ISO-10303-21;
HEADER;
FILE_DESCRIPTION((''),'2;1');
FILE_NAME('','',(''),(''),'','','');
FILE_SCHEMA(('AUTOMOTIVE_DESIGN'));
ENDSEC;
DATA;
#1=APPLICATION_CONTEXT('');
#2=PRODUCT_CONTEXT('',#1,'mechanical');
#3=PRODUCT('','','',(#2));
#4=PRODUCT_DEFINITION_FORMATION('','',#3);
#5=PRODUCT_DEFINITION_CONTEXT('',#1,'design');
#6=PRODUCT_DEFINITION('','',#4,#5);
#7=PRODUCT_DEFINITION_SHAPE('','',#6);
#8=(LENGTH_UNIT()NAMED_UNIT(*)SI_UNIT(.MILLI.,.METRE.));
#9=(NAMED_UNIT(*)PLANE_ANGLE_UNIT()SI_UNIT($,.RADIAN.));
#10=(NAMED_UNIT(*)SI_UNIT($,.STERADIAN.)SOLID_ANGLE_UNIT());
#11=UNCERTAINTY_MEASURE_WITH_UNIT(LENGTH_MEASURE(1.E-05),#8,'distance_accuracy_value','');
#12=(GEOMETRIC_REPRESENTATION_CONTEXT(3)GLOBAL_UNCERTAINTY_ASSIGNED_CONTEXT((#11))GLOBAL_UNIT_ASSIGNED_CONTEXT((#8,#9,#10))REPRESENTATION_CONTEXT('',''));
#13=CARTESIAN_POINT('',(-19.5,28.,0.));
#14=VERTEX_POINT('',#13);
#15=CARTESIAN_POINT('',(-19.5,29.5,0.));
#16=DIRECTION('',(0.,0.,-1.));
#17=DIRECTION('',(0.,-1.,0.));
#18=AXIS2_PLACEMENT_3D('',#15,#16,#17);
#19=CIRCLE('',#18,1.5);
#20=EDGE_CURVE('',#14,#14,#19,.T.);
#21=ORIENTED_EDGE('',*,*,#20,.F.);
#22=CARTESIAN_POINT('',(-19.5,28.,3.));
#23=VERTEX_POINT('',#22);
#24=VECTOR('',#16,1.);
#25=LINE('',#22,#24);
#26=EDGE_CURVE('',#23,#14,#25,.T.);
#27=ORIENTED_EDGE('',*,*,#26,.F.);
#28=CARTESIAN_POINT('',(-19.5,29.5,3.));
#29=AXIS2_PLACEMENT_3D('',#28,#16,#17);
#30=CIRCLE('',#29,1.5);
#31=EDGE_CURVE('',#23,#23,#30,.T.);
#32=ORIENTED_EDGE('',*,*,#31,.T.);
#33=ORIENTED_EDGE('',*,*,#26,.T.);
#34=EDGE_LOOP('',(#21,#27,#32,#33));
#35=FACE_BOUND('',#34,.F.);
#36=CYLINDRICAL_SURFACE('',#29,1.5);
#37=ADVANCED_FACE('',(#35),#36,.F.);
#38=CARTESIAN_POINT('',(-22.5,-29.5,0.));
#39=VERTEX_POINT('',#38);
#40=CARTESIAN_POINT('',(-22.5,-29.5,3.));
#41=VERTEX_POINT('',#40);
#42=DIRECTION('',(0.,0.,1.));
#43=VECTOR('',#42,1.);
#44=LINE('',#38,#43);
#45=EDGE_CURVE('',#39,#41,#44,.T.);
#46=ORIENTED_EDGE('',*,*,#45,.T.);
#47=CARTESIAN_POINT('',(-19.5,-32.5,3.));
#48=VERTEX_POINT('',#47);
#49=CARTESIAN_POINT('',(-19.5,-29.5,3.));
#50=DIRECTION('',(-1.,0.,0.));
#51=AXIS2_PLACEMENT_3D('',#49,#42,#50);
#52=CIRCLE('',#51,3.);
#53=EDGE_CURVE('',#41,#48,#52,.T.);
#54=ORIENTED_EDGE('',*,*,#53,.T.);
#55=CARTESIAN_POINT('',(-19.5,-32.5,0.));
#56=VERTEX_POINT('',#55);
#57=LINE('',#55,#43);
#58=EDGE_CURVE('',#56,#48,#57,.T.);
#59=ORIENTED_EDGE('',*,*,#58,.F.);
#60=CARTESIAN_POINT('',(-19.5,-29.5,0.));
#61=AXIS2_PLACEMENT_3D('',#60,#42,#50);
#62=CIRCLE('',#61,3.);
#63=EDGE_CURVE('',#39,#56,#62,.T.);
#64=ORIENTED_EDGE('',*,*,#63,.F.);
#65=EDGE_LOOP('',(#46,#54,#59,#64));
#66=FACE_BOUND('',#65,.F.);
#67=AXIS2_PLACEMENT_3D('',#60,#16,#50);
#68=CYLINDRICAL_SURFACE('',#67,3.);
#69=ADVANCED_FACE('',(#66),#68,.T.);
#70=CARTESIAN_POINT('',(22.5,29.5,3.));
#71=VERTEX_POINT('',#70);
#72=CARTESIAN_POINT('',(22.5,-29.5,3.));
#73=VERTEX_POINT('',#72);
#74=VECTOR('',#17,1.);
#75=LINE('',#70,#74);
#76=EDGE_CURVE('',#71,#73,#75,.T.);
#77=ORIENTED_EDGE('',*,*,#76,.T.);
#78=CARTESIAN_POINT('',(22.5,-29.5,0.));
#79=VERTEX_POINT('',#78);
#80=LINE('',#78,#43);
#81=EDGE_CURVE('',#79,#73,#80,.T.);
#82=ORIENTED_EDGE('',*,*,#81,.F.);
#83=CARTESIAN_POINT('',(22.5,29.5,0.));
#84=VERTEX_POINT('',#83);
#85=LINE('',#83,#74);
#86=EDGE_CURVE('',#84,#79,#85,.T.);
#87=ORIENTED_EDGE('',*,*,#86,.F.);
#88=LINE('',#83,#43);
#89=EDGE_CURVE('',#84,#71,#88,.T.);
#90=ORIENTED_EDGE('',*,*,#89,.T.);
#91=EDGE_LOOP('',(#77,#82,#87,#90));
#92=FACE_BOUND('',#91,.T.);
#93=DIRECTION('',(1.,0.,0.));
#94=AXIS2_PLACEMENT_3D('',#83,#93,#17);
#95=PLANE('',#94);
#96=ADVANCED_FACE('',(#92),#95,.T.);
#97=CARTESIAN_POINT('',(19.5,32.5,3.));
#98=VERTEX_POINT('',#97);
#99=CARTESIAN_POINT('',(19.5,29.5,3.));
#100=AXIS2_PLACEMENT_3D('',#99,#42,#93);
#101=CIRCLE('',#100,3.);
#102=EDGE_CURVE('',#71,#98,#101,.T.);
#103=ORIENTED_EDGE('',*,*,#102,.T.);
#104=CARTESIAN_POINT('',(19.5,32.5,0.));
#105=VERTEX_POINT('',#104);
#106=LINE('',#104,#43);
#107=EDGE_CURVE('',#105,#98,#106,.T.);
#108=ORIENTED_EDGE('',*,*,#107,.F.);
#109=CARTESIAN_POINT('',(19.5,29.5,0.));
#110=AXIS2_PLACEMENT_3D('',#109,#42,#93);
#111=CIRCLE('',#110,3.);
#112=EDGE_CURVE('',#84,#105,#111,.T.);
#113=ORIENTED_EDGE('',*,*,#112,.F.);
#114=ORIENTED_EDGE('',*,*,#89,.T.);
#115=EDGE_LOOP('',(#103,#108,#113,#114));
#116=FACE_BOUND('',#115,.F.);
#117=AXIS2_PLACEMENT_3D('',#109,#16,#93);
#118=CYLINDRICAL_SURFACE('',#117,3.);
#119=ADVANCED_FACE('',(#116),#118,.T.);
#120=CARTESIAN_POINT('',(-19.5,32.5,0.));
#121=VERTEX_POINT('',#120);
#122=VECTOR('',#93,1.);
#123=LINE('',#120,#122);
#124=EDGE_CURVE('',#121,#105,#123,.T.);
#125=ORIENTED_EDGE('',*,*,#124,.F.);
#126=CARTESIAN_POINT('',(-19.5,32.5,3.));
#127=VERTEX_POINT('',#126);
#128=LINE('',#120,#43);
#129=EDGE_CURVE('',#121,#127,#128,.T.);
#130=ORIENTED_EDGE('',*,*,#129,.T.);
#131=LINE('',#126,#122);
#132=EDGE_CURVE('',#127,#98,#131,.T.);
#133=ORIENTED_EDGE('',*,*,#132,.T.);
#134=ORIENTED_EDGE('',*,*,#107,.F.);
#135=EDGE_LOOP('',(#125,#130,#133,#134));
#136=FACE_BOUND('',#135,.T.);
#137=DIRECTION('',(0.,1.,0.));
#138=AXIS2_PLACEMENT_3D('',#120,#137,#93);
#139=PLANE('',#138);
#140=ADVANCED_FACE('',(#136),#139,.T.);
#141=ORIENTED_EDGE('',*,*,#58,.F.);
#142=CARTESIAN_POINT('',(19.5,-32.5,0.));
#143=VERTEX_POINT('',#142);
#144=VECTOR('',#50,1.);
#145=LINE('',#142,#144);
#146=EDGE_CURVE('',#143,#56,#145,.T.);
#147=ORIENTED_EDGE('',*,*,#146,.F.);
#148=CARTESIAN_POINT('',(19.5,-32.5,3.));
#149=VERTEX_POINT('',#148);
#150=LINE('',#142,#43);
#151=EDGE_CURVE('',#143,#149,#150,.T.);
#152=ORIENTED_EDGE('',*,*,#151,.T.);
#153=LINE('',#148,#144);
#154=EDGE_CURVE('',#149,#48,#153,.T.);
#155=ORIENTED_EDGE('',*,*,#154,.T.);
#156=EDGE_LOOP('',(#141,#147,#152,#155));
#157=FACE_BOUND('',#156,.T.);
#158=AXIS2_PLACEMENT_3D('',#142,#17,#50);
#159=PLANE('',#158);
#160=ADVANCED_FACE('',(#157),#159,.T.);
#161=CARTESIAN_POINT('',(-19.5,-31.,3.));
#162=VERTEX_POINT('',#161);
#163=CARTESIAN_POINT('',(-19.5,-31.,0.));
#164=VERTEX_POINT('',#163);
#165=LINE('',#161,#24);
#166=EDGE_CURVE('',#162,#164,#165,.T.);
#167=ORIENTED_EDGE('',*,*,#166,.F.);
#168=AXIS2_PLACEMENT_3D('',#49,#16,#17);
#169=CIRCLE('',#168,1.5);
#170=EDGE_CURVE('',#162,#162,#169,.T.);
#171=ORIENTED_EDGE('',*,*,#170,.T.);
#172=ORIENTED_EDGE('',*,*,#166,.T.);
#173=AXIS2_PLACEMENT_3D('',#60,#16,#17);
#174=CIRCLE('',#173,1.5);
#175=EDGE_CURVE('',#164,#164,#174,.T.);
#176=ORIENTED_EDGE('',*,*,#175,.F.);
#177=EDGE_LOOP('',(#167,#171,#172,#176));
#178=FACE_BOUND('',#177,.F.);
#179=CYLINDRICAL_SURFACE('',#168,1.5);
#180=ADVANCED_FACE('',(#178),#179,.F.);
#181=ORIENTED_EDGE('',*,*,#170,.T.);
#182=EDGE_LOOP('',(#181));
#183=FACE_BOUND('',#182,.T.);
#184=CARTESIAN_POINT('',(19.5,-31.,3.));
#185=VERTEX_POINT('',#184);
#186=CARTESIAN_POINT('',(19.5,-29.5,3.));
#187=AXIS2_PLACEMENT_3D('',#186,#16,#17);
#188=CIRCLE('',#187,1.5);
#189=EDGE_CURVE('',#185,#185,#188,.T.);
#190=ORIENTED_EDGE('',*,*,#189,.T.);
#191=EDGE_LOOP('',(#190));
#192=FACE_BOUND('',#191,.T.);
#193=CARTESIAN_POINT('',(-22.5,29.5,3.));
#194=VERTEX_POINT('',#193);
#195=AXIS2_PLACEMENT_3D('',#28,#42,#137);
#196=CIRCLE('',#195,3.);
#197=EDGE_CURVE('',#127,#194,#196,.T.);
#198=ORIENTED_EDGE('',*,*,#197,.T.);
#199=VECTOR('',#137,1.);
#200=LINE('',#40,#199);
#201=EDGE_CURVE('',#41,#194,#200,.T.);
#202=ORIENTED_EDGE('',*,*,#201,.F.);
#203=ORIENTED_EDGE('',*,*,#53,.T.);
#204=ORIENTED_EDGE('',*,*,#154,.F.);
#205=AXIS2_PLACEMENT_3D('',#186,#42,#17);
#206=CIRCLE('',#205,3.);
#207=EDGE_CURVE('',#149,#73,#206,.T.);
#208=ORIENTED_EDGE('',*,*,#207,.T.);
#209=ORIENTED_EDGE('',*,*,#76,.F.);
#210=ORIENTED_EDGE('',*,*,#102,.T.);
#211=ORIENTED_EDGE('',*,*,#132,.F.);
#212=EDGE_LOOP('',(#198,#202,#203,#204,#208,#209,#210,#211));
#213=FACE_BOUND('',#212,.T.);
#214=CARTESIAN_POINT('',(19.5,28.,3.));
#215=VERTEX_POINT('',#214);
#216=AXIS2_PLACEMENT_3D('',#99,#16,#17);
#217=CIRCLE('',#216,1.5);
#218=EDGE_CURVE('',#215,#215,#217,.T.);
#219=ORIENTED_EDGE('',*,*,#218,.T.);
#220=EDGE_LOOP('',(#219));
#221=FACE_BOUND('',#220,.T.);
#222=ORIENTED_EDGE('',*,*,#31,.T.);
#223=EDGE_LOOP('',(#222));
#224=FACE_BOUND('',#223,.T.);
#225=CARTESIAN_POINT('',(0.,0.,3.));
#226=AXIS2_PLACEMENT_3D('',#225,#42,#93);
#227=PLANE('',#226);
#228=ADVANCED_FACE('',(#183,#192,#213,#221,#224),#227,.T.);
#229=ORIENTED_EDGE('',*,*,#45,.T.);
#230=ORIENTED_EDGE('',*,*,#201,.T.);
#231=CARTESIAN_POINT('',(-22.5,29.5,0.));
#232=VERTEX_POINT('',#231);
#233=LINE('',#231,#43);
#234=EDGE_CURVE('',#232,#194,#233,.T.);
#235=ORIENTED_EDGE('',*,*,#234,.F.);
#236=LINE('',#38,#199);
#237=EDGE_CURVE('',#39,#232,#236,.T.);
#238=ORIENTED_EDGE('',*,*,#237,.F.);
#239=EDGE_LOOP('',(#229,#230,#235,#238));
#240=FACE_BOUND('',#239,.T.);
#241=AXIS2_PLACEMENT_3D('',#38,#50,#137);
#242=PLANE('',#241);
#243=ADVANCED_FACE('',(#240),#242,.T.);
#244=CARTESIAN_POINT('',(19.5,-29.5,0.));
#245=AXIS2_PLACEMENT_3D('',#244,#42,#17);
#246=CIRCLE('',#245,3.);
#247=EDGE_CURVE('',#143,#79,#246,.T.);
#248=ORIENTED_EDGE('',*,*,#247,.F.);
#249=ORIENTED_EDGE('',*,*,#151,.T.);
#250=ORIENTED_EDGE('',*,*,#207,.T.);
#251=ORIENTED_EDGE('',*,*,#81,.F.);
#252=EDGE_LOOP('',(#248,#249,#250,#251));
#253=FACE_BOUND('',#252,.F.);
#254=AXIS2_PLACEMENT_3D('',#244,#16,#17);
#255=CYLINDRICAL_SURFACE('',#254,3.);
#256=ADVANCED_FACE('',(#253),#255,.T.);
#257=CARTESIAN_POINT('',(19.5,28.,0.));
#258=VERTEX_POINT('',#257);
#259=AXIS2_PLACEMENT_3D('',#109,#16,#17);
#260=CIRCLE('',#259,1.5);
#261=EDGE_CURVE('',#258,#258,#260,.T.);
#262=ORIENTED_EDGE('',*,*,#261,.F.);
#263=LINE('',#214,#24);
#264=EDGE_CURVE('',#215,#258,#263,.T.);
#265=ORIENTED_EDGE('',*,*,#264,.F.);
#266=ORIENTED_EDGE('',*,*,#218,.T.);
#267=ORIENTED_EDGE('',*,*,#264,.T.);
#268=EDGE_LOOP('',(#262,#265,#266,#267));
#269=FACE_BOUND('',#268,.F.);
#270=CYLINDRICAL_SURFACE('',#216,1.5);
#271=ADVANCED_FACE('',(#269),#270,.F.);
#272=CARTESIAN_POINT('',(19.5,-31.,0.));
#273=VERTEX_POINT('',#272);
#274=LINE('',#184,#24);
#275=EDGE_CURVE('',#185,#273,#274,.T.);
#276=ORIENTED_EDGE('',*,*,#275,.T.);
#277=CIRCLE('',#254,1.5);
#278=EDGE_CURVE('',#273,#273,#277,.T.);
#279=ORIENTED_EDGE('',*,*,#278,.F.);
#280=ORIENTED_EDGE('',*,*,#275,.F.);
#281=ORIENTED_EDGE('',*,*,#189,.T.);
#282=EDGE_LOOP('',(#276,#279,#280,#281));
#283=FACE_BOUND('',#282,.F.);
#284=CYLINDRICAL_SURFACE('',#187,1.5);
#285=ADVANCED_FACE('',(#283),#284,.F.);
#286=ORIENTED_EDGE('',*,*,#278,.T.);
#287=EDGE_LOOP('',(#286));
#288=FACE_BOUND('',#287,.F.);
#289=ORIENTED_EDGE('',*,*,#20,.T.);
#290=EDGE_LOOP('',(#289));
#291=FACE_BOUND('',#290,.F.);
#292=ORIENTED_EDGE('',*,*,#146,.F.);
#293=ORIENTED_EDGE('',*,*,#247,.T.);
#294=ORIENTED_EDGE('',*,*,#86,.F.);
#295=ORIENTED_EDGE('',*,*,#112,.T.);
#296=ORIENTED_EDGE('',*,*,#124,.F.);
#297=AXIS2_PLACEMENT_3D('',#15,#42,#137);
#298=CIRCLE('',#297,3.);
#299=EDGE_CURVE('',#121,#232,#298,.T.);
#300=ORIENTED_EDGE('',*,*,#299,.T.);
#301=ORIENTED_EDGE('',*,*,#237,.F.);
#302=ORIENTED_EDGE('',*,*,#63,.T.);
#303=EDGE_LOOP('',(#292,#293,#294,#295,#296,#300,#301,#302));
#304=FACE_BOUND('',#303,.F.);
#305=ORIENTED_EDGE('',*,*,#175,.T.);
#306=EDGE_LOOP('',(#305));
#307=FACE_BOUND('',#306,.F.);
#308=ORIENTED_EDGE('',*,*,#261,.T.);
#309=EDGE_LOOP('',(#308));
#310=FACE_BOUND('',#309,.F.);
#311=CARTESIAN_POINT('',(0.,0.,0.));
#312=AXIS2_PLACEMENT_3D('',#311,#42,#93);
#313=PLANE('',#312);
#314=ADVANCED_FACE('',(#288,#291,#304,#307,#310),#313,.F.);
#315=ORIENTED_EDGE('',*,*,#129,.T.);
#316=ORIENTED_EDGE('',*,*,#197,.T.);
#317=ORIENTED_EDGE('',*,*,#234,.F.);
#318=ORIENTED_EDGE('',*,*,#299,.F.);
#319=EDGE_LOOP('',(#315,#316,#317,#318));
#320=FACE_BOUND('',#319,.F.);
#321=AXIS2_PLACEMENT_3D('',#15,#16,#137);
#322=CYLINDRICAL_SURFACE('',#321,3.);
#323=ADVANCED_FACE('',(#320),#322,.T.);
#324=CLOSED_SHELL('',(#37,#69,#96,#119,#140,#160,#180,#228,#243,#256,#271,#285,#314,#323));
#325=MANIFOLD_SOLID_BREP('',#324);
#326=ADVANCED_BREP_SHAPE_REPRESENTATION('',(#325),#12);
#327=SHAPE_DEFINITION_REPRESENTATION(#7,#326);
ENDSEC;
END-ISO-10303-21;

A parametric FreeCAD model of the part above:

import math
import FreeCAD as App
import Part
import Sketcher

V = App.Vector

doc = App.newDocument("Part")
body = doc.addObject("PartDesign::Body", "Body")

# Sketch on XY plane
sketch1 = body.newObject("Sketcher::SketchObject", "Sketch")
sketch1.AttachmentSupport = (doc.getObject("XY_Plane"), [""])
sketch1.MapMode = "FlatFace"
sketch1.addGeometry(Part.LineSegment(V(-19.5, -32.5, 0), V(19.5, -32.5, 0)), False)
sketch1.addGeometry(Part.ArcOfCircle(Part.Circle(V(19.5, -29.5, 0), V(0, 0, 1), 3), math.radians(-90), math.radians(0)), False)
sketch1.addGeometry(Part.LineSegment(V(22.5, -29.5, 0), V(22.5, 29.5, 0)), False)
sketch1.addGeometry(Part.ArcOfCircle(Part.Circle(V(19.5, 29.5, 0), V(0, 0, 1), 3), math.radians(0), math.radians(90)), False)
sketch1.addGeometry(Part.LineSegment(V(19.5, 32.5, 0), V(-19.5, 32.5, 0)), False)
sketch1.addGeometry(Part.ArcOfCircle(Part.Circle(V(-19.5, 29.5, 0), V(0, 0, 1), 3), math.radians(90), math.radians(180)), False)
sketch1.addGeometry(Part.LineSegment(V(-22.5, 29.5, 0), V(-22.5, -29.5, 0)), False)
sketch1.addGeometry(Part.ArcOfCircle(Part.Circle(V(-19.5, -29.5, 0), V(0, 0, 1), 3), math.radians(180), math.radians(270)), False)
sketch1.addConstraint(Sketcher.Constraint("Tangent", 0, 2, 1, 1))
sketch1.addConstraint(Sketcher.Constraint("Tangent", 1, 2, 2, 1))
sketch1.addConstraint(Sketcher.Constraint("Tangent", 2, 2, 3, 1))
sketch1.addConstraint(Sketcher.Constraint("Tangent", 3, 2, 4, 1))
sketch1.addConstraint(Sketcher.Constraint("Tangent", 4, 2, 5, 1))
sketch1.addConstraint(Sketcher.Constraint("Tangent", 5, 2, 6, 1))
sketch1.addConstraint(Sketcher.Constraint("Tangent", 6, 2, 7, 1))
sketch1.addConstraint(Sketcher.Constraint("Tangent", 7, 2, 0, 1))
sketch1.addConstraint(Sketcher.Constraint("Horizontal", 0))
sketch1.addConstraint(Sketcher.Constraint("Vertical", 2))
sketch1.addConstraint(Sketcher.Constraint("Horizontal", 4))
sketch1.addConstraint(Sketcher.Constraint("Vertical", 6))
sketch1.addConstraint(Sketcher.Constraint("Equal", 1, 3))
sketch1.addConstraint(Sketcher.Constraint("Equal", 3, 5))
sketch1.addConstraint(Sketcher.Constraint("Equal", 5, 7))
sketch1.addConstraint(Sketcher.Constraint("Symmetric", 1, 3, 5, 3, -1, 1))
sketch1.addConstraint(Sketcher.Constraint("Radius", 1, 3.0))
sketch1.addConstraint(Sketcher.Constraint("DistanceX", 5, 2, 2, 2, 45.0))
sketch1.addConstraint(Sketcher.Constraint("DistanceY", 2, 1, 2, 2, 59.0))
pad1 = body.newObject("PartDesign::Pad", "Pad")
pad1.Profile = sketch1
pad1.Length = 3

# Sketch on XY plane
sketch2 = body.newObject("Sketcher::SketchObject", "Sketch001")
sketch2.AttachmentSupport = (doc.getObject("XY_Plane"), [""])
sketch2.MapMode = "FlatFace"
sketch2.AttachmentOffset = App.Placement(V(0, 0, 3), App.Rotation())
sketch2.addGeometry(Part.Circle(V(-19.5, -29.5, 0), V(0, 0, 1), 1.5), False)
sketch2.addGeometry(Part.Circle(V(19.5, -29.5, 0), V(0, 0, 1), 1.5), False)
sketch2.addGeometry(Part.Circle(V(19.5, 29.5, 0), V(0, 0, 1), 1.5), False)
sketch2.addGeometry(Part.Circle(V(-19.5, 29.5, 0), V(0, 0, 1), 1.5), False)
sketch2.addConstraint(Sketcher.Constraint("Equal", 0, 1))
sketch2.addConstraint(Sketcher.Constraint("Equal", 1, 2))
sketch2.addConstraint(Sketcher.Constraint("Equal", 2, 3))
sketch2.addConstraint(Sketcher.Constraint("Symmetric", 0, 3, 2, 3, -1, 1))
sketch2.addConstraint(Sketcher.Constraint("Symmetric", 1, 3, 3, 3, -1, 1))
sketch2.addConstraint(Sketcher.Constraint("Symmetric", 0, 3, 1, 3, -2))
sketch2.addConstraint(Sketcher.Constraint("Diameter", 0, 3.0))
sketch2.addConstraint(Sketcher.Constraint("DistanceX", 0, 3, 1, 3, 39.0))
sketch2.addConstraint(Sketcher.Constraint("DistanceY", 1, 3, 2, 3, 59.0))
doc.recompute()
hole = body.newObject("PartDesign::Hole", "Hole")
hole.Profile = sketch2
hole.ThreadType = "None"
hole.Diameter = 3
hole.DepthType = "ThroughAll"

doc.recompute()
